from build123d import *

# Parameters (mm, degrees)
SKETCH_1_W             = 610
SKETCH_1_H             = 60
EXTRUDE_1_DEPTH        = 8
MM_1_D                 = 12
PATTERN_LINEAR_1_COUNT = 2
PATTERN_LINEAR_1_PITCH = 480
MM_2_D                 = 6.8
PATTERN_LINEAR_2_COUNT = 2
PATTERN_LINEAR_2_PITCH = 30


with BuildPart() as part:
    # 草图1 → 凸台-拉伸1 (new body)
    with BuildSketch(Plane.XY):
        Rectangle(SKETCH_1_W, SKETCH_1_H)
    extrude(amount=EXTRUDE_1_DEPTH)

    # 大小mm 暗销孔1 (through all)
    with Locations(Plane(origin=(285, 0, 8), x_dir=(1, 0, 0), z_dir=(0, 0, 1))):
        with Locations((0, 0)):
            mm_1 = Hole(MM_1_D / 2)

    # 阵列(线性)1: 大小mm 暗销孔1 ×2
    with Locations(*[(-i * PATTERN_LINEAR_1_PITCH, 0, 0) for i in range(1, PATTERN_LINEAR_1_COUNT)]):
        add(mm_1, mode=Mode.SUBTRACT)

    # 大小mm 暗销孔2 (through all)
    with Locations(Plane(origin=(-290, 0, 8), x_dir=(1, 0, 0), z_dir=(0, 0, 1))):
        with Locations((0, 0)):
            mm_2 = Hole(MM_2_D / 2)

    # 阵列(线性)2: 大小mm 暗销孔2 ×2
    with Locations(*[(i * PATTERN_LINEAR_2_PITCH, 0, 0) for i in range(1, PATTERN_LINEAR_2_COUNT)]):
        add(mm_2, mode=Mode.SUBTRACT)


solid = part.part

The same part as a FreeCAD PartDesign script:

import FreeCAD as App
import Part
import Sketcher

doc = App.newDocument("Part")
body = doc.addObject("PartDesign::Body", "Body")

sketch1 = body.newObject("Sketcher::SketchObject", "Sketch")
sketch1.AttachmentSupport = (doc.getObject("XY_Plane"), [""])
sketch1.MapMode = "FlatFace"
sketch1.addGeometry(Part.LineSegment(App.Vector(-305, 30, 0), App.Vector(-305, -30, 0)), False)
sketch1.addGeometry(Part.LineSegment(App.Vector(-305, -30, 0), App.Vector(305, -30, 0)), False)
sketch1.addGeometry(Part.LineSegment(App.Vector(305, -30, 0), App.Vector(305, 30, 0)), False)
sketch1.addGeometry(Part.LineSegment(App.Vector(305, 30, 0), App.Vector(-305, 30, 0)), False)
sketch1.addConstraint(Sketcher.Constraint("Coincident", 0, 2, 1, 1))
sketch1.addConstraint(Sketcher.Constraint("Coincident", 1, 2, 2, 1))
sketch1.addConstraint(Sketcher.Constraint("Coincident", 2, 2, 3, 1))
sketch1.addConstraint(Sketcher.Constraint("Coincident", 3, 2, 0, 1))
sketch1.addConstraint(Sketcher.Constraint("Vertical", 0))
sketch1.addConstraint(Sketcher.Constraint("Horizontal", 1))
sketch1.addConstraint(Sketcher.Constraint("Vertical", 2))
sketch1.addConstraint(Sketcher.Constraint("Horizontal", 3))
sketch1.addConstraint(Sketcher.Constraint("Symmetric", 0, 2, 2, 2, -1, 1))
sketch1.addConstraint(Sketcher.Constraint("DistanceX", 1, 1, 1, 2, 610.0))
sketch1.addConstraint(Sketcher.Constraint("DistanceY", 0, 2, 0, 1, 60.0))
pad1 = body.newObject("PartDesign::Pad", "Pad")
pad1.Profile = sketch1
pad1.Length = 8

sketch2 = body.newObject("Sketcher::SketchObject", "Sketch001")
sketch2.AttachmentSupport = (doc.getObject("XY_Plane"), [""])
sketch2.MapMode = "FlatFace"
sketch2.AttachmentOffset = App.Placement(App.Vector(0, 0, 8), App.Rotation())
sketch2.addGeometry(Part.Circle(App.Vector(285, 0, 0), App.Vector(0, 0, 1), 6), False)
sketch2.addConstraint(Sketcher.Constraint("PointOnObject", 0, 3, -1))
sketch2.addConstraint(Sketcher.Constraint("Diameter", 0, 12.0))
sketch2.addConstraint(Sketcher.Constraint("DistanceX", -1, 1, 0, 3, 285.0))
doc.recompute()
hole = body.newObject("PartDesign::Hole", "Hole")
hole.Profile = sketch2
hole.ThreadType = "None"
hole.Diameter = 12
hole.DepthType = "ThroughAll"
doc.recompute()

linearpattern = body.newObject("PartDesign::LinearPattern", "LinearPattern")
linearpattern.Originals = [hole]
linearpattern.Direction = (doc.getObject("X_Axis"), [""])
linearpattern.Mode = "offset"
linearpattern.Offset = 480
linearpattern.Occurrences = 2
linearpattern.Reversed = True
body.Tip = linearpattern

sketch3 = body.newObject("Sketcher::SketchObject", "Sketch002")
sketch3.AttachmentSupport = (doc.getObject("XY_Plane"), [""])
sketch3.MapMode = "FlatFace"
sketch3.AttachmentOffset = App.Placement(App.Vector(0, 0, 8), App.Rotation())
sketch3.addGeometry(Part.Circle(App.Vector(-290, 0, 0), App.Vector(0, 0, 1), 3.4), False)
sketch3.addConstraint(Sketcher.Constraint("PointOnObject", 0, 3, -1))
sketch3.addConstraint(Sketcher.Constraint("Diameter", 0, 6.8))
sketch3.addConstraint(Sketcher.Constraint("DistanceX", 0, 3, -1, 1, 290.0))
doc.recompute()
hole2 = body.newObject("PartDesign::Hole", "Hole001")
hole2.Profile = sketch3
hole2.ThreadType = "None"
hole2.Diameter = 6.8
hole2.DepthType = "ThroughAll"
doc.recompute()

linearpattern2 = body.newObject("PartDesign::LinearPattern", "LinearPattern001")
linearpattern2.Originals = [hole2]
linearpattern2.Direction = (doc.getObject("X_Axis"), [""])
linearpattern2.Mode = "offset"
linearpattern2.Offset = 30
linearpattern2.Occurrences = 2
body.Tip = linearpattern2

doc.recompute()
